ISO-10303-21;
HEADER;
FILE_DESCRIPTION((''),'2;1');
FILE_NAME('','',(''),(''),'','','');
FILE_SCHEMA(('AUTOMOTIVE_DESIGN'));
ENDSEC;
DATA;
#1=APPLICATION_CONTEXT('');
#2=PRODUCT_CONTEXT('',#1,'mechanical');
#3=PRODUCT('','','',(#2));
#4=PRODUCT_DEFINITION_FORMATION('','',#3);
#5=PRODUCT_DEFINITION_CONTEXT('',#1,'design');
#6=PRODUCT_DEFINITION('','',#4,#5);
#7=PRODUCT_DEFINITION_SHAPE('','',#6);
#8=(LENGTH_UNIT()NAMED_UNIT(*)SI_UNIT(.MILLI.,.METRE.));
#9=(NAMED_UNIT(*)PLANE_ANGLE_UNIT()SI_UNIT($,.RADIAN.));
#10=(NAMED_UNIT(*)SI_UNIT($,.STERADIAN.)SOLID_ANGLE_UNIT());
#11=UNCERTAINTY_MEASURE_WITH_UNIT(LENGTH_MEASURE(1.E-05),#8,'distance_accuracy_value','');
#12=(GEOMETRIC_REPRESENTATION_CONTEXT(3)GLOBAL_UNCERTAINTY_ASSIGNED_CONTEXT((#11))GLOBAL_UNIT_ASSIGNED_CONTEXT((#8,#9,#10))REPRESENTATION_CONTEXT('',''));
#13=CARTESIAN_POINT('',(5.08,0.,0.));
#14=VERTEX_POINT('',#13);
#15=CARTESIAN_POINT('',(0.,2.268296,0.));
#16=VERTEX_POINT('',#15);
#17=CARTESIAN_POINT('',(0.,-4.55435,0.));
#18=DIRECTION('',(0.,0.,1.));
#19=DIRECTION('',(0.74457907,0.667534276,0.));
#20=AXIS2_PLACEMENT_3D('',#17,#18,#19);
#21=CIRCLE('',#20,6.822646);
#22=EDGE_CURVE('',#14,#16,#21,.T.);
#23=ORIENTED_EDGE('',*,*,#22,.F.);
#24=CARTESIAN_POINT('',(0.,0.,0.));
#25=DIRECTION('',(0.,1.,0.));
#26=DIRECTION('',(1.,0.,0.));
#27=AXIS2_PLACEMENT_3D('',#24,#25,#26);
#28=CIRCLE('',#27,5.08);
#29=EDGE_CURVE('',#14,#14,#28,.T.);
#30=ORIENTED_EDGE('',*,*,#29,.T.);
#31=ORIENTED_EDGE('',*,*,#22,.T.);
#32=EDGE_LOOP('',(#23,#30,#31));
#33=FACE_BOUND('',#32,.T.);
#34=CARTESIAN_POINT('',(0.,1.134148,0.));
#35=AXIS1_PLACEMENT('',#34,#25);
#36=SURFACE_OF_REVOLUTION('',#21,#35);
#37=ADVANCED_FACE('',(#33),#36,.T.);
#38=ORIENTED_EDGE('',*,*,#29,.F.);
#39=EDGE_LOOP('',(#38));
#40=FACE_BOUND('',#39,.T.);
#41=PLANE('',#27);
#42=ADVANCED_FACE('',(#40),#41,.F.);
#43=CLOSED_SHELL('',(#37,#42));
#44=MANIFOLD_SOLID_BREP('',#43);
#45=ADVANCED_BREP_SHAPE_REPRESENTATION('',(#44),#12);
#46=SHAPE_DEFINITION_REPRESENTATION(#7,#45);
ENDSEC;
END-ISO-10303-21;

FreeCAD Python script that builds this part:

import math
import FreeCAD as App
import Part
import Sketcher
from FreeCAD import Vector
Q = App.Units.Quantity

doc = App.newDocument("Part")
params = doc.addObject("Spreadsheet::Sheet", "Params")
for row, (alias, value) in enumerate([
    ("sketch1_width", "0.2 in"),
    ("revolution_angle", "360 deg"),
], start=1):
    params.set(f"A{row}", alias)
    params.set(f"B{row}", "=" + value)
    params.setAlias(f"B{row}", alias)

body = doc.addObject("PartDesign::Body", "Body")

# Sketch on XY plane
sketch1 = body.newObject("Sketcher::SketchObject", "Sketch")
sketch1.AttachmentSupport = (doc.getObject("XY_Plane"), [""])
sketch1.MapMode = "FlatFace"
sketch1.addGeometry(Part.LineSegment(Vector(0, 2.268296, 0), Vector(0, 0, 0)), False)
sketch1.addGeometry(Part.LineSegment(Vector(0, 0, 0), Vector(5.08, 0, 0)), False)
sketch1.addGeometry(Part.ArcOfCircle(Part.Circle(Vector(0, -4.55435, 0), Vector(0, 0, 1), 6.822646), math.radians(41.877043), math.radians(90.000004)), False)
sketch1.addConstraint(Sketcher.Constraint("Coincident", 0, 2, 1, 1))
sketch1.addConstraint(Sketcher.Constraint("Coincident", 1, 2, 2, 1))
sketch1.addConstraint(Sketcher.Constraint("Coincident", 2, 2, 0, 1))
sketch1.addConstraint(Sketcher.Constraint("Vertical", 0))
sketch1.addConstraint(Sketcher.Constraint("Horizontal", 1))
sketch1.addConstraint(Sketcher.Constraint("Coincident", 0, 2, -1, 1))
sketch1.addConstraint(Sketcher.Constraint("PointOnObject", 2, 3, -2))
sketch1.addConstraint(Sketcher.Constraint("DistanceX", 1, 1, 1, 2, Q("0.2 in")))
sketch1.addConstraint(Sketcher.Constraint("Radius", 2, Q("6.822646 mm")))
sketch1.setExpression("Constraints[7]", "Params.sketch1_width")
revolution = body.newObject("PartDesign::Revolution", "Revolution")
revolution.Profile = sketch1
revolution.ReferenceAxis = (sketch1, ["V_Axis"])
revolution.setExpression("Angle", "Params.revolution_angle")

doc.recompute()
